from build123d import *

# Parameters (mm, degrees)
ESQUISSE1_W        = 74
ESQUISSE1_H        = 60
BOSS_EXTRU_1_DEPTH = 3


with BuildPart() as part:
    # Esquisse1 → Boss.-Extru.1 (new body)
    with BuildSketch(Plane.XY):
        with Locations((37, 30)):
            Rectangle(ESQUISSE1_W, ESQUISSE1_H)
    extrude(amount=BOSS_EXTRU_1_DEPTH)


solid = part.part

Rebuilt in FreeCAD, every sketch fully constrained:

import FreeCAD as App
import Part
import Sketcher
Q = App.Units.Quantity


def add_polygon(sketch, points):
    """Adds a closed chain of lines whose ends are joined by coincident constraints."""
    first, n = sketch.GeometryCount, len(points)
    for a, b in zip(points, points[1:] + points[:1]):
        sketch.addGeometry(Part.LineSegment(App.Vector(*a, 0), App.Vector(*b, 0)), False)
    for i in range(n):
        sketch.addConstraint(Sketcher.Constraint("Coincident", first + i, 2, first + (i + 1) % n, 1))

doc = App.newDocument("Part")
body = doc.addObject("PartDesign::Body", "Body")

sketch1 = doc.addObject("Sketcher::SketchObject", "Sketch")
body.addObject(sketch1)
sketch1.AttachmentSupport = (doc.XY_Plane, [""])
sketch1.MapMode = "FlatFace"
add_polygon(sketch1, [(0, 60), (0, 0), (74, 0), (74, 60)])
sketch1.addConstraint(Sketcher.Constraint("Vertical", 0))
sketch1.addConstraint(Sketcher.Constraint("Horizontal", 1))
sketch1.addConstraint(Sketcher.Constraint("Vertical", 2))
sketch1.addConstraint(Sketcher.Constraint("Horizontal", 3))
sketch1.addConstraint(Sketcher.Constraint("Coincident", 0, 2, -1, 1))
sketch1.addConstraint(Sketcher.Constraint("DistanceX", 1, 1, 1, 2, Q("74 mm")))
sketch1.addConstraint(Sketcher.Constraint("DistanceY", 0, 2, 0, 1, Q("60 mm")))
pad1 = doc.addObject("PartDesign::Pad", "Pad")
body.addObject(pad1)
pad1.Profile = sketch1
pad1.Length = 3

doc.recompute()
